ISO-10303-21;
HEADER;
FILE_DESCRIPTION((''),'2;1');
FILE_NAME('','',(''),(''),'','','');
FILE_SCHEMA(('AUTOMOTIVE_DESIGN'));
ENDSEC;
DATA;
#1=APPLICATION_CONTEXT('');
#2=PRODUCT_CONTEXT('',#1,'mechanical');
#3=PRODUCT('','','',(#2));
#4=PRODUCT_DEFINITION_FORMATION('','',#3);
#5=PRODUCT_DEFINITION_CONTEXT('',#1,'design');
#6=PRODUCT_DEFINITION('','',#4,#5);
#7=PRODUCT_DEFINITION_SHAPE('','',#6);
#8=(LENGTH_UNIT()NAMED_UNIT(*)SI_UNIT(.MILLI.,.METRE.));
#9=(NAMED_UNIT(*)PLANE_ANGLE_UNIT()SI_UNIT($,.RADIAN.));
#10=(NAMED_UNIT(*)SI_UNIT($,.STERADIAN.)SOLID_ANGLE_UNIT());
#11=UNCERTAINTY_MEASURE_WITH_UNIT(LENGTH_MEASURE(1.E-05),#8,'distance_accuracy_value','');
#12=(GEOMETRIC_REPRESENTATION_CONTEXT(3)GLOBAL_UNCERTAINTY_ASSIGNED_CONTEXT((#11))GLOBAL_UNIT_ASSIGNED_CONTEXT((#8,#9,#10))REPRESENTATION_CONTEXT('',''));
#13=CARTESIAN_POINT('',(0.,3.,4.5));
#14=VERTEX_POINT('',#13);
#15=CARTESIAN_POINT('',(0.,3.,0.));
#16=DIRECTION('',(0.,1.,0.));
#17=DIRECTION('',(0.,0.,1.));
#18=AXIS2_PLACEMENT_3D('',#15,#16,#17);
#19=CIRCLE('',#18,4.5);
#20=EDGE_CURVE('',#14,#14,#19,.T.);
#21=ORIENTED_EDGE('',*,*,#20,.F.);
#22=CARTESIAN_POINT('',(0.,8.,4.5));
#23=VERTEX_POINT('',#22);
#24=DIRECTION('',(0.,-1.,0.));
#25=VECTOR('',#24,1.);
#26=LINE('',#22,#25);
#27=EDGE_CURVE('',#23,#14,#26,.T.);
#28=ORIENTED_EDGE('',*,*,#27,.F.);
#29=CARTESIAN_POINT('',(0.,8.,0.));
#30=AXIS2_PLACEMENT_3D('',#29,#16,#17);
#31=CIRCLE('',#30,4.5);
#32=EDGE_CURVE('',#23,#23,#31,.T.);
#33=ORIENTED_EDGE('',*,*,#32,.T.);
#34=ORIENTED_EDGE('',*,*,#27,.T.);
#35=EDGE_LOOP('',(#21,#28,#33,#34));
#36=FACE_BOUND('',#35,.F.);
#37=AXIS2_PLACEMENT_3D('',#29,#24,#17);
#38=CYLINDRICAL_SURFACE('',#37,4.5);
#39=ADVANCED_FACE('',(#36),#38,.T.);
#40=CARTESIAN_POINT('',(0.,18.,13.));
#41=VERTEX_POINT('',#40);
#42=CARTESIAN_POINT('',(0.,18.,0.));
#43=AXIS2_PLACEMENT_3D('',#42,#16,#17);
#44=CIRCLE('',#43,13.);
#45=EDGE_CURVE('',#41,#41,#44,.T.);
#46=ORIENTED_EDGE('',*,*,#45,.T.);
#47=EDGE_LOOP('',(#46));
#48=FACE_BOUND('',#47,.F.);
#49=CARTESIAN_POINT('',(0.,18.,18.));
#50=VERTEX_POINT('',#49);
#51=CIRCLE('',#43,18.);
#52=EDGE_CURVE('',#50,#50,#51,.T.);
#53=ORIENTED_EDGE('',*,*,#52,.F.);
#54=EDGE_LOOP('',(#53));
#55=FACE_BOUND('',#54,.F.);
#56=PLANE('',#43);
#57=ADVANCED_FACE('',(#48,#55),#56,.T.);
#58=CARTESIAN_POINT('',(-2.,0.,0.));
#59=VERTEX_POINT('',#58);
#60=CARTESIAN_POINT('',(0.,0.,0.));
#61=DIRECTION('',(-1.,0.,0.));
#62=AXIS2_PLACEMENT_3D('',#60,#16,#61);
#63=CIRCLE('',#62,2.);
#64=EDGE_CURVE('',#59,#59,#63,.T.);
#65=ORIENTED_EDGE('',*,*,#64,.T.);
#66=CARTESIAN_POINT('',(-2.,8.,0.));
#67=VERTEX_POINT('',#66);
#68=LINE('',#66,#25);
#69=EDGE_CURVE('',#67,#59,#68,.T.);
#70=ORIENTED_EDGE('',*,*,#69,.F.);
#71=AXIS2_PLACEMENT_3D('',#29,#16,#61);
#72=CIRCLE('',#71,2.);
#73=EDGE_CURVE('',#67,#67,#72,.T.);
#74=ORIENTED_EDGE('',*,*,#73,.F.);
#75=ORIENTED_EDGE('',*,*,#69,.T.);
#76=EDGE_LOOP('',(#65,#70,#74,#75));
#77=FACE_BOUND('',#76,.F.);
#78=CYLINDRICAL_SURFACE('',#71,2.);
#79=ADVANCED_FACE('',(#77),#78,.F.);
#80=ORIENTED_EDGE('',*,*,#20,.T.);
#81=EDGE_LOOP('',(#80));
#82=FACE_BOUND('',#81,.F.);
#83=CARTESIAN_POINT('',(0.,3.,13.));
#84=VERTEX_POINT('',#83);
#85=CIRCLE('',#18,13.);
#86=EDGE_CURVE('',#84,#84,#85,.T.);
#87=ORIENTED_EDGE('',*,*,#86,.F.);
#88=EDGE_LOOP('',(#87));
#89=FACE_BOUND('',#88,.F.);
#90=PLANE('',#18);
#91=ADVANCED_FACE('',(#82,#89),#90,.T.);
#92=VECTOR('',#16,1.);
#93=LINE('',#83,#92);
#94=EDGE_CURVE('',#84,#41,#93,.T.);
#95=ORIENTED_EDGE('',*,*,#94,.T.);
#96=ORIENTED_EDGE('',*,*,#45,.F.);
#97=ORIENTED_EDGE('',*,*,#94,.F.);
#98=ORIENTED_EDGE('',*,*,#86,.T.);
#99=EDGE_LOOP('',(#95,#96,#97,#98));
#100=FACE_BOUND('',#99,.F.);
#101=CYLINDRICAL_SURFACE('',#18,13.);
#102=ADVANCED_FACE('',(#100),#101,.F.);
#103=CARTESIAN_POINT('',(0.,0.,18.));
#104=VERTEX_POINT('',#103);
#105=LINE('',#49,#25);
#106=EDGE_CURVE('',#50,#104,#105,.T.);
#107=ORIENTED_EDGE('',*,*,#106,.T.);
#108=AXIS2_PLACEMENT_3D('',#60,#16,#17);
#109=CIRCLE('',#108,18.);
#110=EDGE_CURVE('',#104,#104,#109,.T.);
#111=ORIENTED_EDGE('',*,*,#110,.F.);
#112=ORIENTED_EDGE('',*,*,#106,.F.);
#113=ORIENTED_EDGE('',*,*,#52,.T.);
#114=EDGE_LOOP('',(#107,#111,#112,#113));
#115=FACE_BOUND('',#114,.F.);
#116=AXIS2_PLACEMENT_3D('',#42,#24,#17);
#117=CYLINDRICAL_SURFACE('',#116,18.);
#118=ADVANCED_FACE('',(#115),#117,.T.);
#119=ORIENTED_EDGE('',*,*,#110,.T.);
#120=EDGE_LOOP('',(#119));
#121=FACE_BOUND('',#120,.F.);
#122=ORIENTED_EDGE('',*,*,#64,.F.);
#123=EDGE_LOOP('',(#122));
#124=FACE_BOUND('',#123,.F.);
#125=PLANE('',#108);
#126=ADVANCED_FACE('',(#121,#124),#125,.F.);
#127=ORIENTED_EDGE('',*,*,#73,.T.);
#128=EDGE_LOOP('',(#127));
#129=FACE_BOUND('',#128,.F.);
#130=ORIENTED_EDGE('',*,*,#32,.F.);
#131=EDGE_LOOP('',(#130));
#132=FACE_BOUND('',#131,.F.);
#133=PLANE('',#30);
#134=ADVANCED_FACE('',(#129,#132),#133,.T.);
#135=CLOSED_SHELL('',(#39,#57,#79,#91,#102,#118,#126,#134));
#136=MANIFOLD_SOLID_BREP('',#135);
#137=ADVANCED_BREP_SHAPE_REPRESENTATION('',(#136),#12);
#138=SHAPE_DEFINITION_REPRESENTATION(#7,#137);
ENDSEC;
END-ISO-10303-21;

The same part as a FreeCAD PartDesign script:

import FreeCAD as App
import Part
import Sketcher

V = App.Vector
Q = App.Units.Quantity

doc = App.newDocument("Part")
params = doc.addObject("Spreadsheet::Sheet", "Params")
for row, (alias, value) in enumerate([
    ("sketch1_width", "8 mm"),
    ("sketch1_width2", "5 mm"),
    ("sketch1_width3", "15 mm"),
    ("sketch1_height", "4.5 mm"),
    ("revolution_angle", "360 deg"),
    ("sketch2_diameter", "4 mm"),
    ("pocket1_length", "25 mm"),
], start=1):
    params.set(f"A{row}", alias)
    params.set(f"B{row}", "=" + value)
    params.setAlias(f"B{row}", alias)

body = doc.addObject("PartDesign::Body", "Body")

# Sketch on YZ plane
sketch1 = doc.addObject("Sketcher::SketchObject", "Sketch")
body.addObject(sketch1)
sketch1.AttachmentSupport = (doc.YZ_Plane, [""])
sketch1.MapMode = "FlatFace"
sketch1.addGeometry(Part.LineSegment(V(0, 18, 0), V(0, 0, 0)), False)
sketch1.addGeometry(Part.LineSegment(V(0, 0, 0), V(8, 0, 0)), False)
sketch1.addGeometry(Part.LineSegment(V(8, 0, 0), V(8, 4.5, 0)), False)
sketch1.addGeometry(Part.LineSegment(V(8, 4.5, 0), V(3, 4.5, 0)), False)
sketch1.addGeometry(Part.LineSegment(V(3, 4.5, 0), V(3, 13, 0)), False)
sketch1.addGeometry(Part.LineSegment(V(3, 13, 0), V(18, 13, 0)), False)
sketch1.addGeometry(Part.LineSegment(V(18, 13, 0), V(18, 18, 0)), False)
sketch1.addGeometry(Part.LineSegment(V(18, 18, 0), V(0, 18, 0)), False)
sketch1.addConstraint(Sketcher.Constraint("Coincident", 0, 2, 1, 1))
sketch1.addConstraint(Sketcher.Constraint("Coincident", 1, 2, 2, 1))
sketch1.addConstraint(Sketcher.Constraint("Coincident", 2, 2, 3, 1))
sketch1.addConstraint(Sketcher.Constraint("Coincident", 3, 2, 4, 1))
sketch1.addConstraint(Sketcher.Constraint("Coincident", 4, 2, 5, 1))
sketch1.addConstraint(Sketcher.Constraint("Coincident", 5, 2, 6, 1))
sketch1.addConstraint(Sketcher.Constraint("Coincident", 6, 2, 7, 1))
sketch1.addConstraint(Sketcher.Constraint("Coincident", 7, 2, 0, 1))
sketch1.addConstraint(Sketcher.Constraint("Vertical", 0))
sketch1.addConstraint(Sketcher.Constraint("Horizontal", 1))
sketch1.addConstraint(Sketcher.Constraint("Vertical", 2))
sketch1.addConstraint(Sketcher.Constraint("Horizontal", 3))
sketch1.addConstraint(Sketcher.Constraint("Vertical", 4))
sketch1.addConstraint(Sketcher.Constraint("Horizontal", 5))
sketch1.addConstraint(Sketcher.Constraint("Vertical", 6))
sketch1.addConstraint(Sketcher.Constraint("Horizontal", 7))
sketch1.addConstraint(Sketcher.Constraint("Coincident", 0, 2, -1, 1))
sketch1.addConstraint(Sketcher.Constraint("Equal", 7, 0))
sketch1.addConstraint(Sketcher.Constraint("Equal", 3, 6))
sketch1.addConstraint(Sketcher.Constraint("DistanceX", 1, 1, 1, 2, Q("8 mm")))
sketch1.addConstraint(Sketcher.Constraint("DistanceX", 3, 2, 3, 1, Q("5 mm")))
sketch1.addConstraint(Sketcher.Constraint("DistanceX", 5, 1, 5, 2, Q("15 mm")))
sketch1.addConstraint(Sketcher.Constraint("DistanceY", 2, 1, 2, 2, Q("4.5 mm")))
sketch1.setExpression("Constraints[19]", "Params.sketch1_width")
sketch1.setExpression("Constraints[20]", "Params.sketch1_width2")
sketch1.setExpression("Constraints[21]", "Params.sketch1_width3")
sketch1.setExpression("Constraints[22]", "Params.sketch1_height")
revolution = doc.addObject("PartDesign::Revolution", "Revolution")
body.addObject(revolution)
revolution.Profile = sketch1
revolution.ReferenceAxis = (sketch1, ["H_Axis"])
revolution.setExpression("Angle", "Params.revolution_angle")

# Sketch on XZ plane
sketch2 = doc.addObject("Sketcher::SketchObject", "Sketch001")
body.addObject(sketch2)
sketch2.AttachmentSupport = (doc.XZ_Plane, [""])
sketch2.MapMode = "FlatFace"
sketch2.AttachmentOffset = App.Placement(V(0, 0, -8), App.Rotation())
sketch2.addGeometry(Part.Circle(V(0, 0, 0), V(0, 0, 1), 2), False)
sketch2.addConstraint(Sketcher.Constraint("Coincident", 0, 3, -1, 1))
sketch2.addConstraint(Sketcher.Constraint("Diameter", 0, Q("4 mm")))
sketch2.setExpression("Constraints[1]", "Params.sketch2_diameter")
pocket1 = doc.addObject("PartDesign::Pocket", "Pocket")
body.addObject(pocket1)
pocket1.Profile = sketch2
pocket1.setExpression("Length", "Params.pocket1_length")
pocket1.Reversed = True

doc.recompute()
